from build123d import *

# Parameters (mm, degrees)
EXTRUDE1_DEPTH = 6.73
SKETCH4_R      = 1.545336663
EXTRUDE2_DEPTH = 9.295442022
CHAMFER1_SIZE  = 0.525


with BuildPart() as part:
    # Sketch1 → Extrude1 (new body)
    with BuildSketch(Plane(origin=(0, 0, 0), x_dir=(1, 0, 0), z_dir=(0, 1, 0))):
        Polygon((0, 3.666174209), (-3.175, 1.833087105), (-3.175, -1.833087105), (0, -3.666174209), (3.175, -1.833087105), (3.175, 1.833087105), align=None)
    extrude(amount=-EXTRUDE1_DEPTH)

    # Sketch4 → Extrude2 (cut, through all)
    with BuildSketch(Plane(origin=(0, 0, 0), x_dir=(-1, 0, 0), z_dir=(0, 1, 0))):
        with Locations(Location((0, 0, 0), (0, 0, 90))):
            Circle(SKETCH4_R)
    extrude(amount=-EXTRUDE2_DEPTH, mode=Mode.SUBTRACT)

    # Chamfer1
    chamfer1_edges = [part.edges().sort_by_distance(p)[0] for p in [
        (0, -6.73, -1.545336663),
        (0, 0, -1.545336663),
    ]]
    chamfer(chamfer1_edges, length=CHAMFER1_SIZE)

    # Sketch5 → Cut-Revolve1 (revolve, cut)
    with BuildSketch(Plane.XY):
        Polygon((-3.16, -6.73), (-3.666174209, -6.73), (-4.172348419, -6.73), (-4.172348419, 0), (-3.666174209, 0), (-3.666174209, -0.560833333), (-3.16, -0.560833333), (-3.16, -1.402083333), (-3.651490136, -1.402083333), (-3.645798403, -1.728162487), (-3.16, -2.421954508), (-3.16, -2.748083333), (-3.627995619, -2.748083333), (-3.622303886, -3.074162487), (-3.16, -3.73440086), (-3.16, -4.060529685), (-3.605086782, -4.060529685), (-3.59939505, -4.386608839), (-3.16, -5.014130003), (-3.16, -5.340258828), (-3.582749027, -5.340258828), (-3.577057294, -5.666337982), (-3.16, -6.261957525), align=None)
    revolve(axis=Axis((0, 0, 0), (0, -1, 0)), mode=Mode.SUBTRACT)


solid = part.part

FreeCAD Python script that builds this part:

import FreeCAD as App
import Part
import Sketcher
Q = App.Units.Quantity


def edges_at(feature, points):
    """Names of the edges that pass closest to the given points."""
    edges = feature.Shape.Edges
    near = lambda p: min(range(len(edges)), key=lambda i: edges[i].distToShape(Part.Vertex(*p))[0])
    return sorted({f"Edge{near(p) + 1}" for p in points})

doc = App.newDocument("Part")
body = doc.addObject("PartDesign::Body", "Body")

# Sketch on XZ plane
sketch1 = doc.addObject("Sketcher::SketchObject", "Sketch")
body.addObject(sketch1)
sketch1.AttachmentSupport = (doc.XZ_Plane, [""])
sketch1.MapMode = "FlatFace"
sketch1.addGeometry(Part.LineSegment(App.Vector(0, -3.7, 0), App.Vector(-3.2, -1.8, 0)), False)
sketch1.addGeometry(Part.LineSegment(App.Vector(-3.2, -1.8, 0), App.Vector(-3.2, 1.8, 0)), False)
sketch1.addGeometry(Part.LineSegment(App.Vector(-3.2, 1.8, 0), App.Vector(0, 3.7, 0)), False)
sketch1.addGeometry(Part.LineSegment(App.Vector(0, 3.7, 0), App.Vector(3.2, 1.8, 0)), False)
sketch1.addGeometry(Part.LineSegment(App.Vector(3.2, 1.8, 0), App.Vector(3.2, -1.8, 0)), False)
sketch1.addGeometry(Part.LineSegment(App.Vector(3.2, -1.8, 0), App.Vector(0, -3.7, 0)), False)
sketch1.addConstraint(Sketcher.Constraint("Coincident", 0, 2, 1, 1))
sketch1.addConstraint(Sketcher.Constraint("Coincident", 1, 2, 2, 1))
sketch1.addConstraint(Sketcher.Constraint("Coincident", 2, 2, 3, 1))
sketch1.addConstraint(Sketcher.Constraint("Coincident", 3, 2, 4, 1))
sketch1.addConstraint(Sketcher.Constraint("Coincident", 4, 2, 5, 1))
sketch1.addConstraint(Sketcher.Constraint("Coincident", 5, 2, 0, 1))
sketch1.addConstraint(Sketcher.Constraint("Vertical", 1))
sketch1.addConstraint(Sketcher.Constraint("Vertical", 4))
sketch1.addConstraint(Sketcher.Constraint("Symmetric", 0, 2, 3, 2, -1, 1))
sketch1.addConstraint(Sketcher.Constraint("Symmetric", 2, 2, 5, 2, -1, 1))
sketch1.addConstraint(Sketcher.Constraint("PointOnObject", 2, 2, -2))
sketch1.addConstraint(Sketcher.Constraint("Parallel", 2, 5))
sketch1.addConstraint(Sketcher.Constraint("Horizontal", 1, 2, 3, 2))
sketch1.addConstraint(Sketcher.Constraint("Angle", 0, Q("150 deg")))
sketch1.addConstraint(Sketcher.Constraint("DistanceX", 1, 2, 3, 2, 6.35))
sketch1.addConstraint(Sketcher.Constraint("DistanceY", 1, 1, 1, 2, 3.666174))
pad1 = doc.addObject("PartDesign::Pad", "Pad")
body.addObject(pad1)
pad1.Profile = sketch1
pad1.Length = 6.73

# Sketch on XZ plane
sketch2 = doc.addObject("Sketcher::SketchObject", "Sketch001")
body.addObject(sketch2)
sketch2.AttachmentSupport = (doc.XZ_Plane, [""])
sketch2.MapMode = "FlatFace"
sketch2.addGeometry(Part.Circle(App.Vector(0, 0, 0), App.Vector(0, 0, 1), 1.5), False)
sketch2.addConstraint(Sketcher.Constraint("Coincident", 0, 3, -1, 1))
sketch2.addConstraint(Sketcher.Constraint("Diameter", 0, 3.090673))
pocket1 = doc.addObject("PartDesign::Pocket", "Pocket")
body.addObject(pocket1)
pocket1.Profile = sketch2
pocket1.Type = "ThroughAll"
pocket1.Reversed = True
doc.recompute()

chamfer = doc.addObject("PartDesign::Chamfer", "Chamfer")
body.addObject(chamfer)
chamfer.Base = (pocket1, edges_at(pocket1, [(0, -6.73, -1.545), (0, 0, -1.545)]))
chamfer.Size = 0.525

# Sketch on XY plane
sketch3 = doc.addObject("Sketcher::SketchObject", "Sketch002")
body.addObject(sketch3)
sketch3.AttachmentSupport = (doc.XY_Plane, [""])
sketch3.MapMode = "FlatFace"
sketch3.addGeometry(Part.LineSegment(App.Vector(-4.17, -6.73, 0), App.Vector(-3.16, -6.73, 0)), False)
sketch3.addGeometry(Part.LineSegment(App.Vector(-3.16, -6.73, 0), App.Vector(-3.16, -6.26, 0)), False)
sketch3.addGeometry(Part.LineSegment(App.Vector(-3.16, -6.26, 0), App.Vector(-3.58, -5.67, 0)), False)
sketch3.addGeometry(Part.LineSegment(App.Vector(-3.58, -5.67, 0), App.Vector(-3.58, -5.34, 0)), False)
sketch3.addGeometry(Part.LineSegment(App.Vector(-3.58, -5.34, 0), App.Vector(-3.16, -5.34, 0)), False)
sketch3.addGeometry(Part.LineSegment(App.Vector(-3.16, -5.34, 0), App.Vector(-3.16, -5.01, 0)), False)
sketch3.addGeometry(Part.LineSegment(App.Vector(-3.16, -5.01, 0), App.Vector(-3.6, -4.39, 0)), False)
sketch3.addGeometry(Part.LineSegment(App.Vector(-3.6, -4.39, 0), App.Vector(-3.61, -4.06, 0)), False)
sketch3.addGeometry(Part.LineSegment(App.Vector(-3.61, -4.06, 0), App.Vector(-3.16, -4.06, 0)), False)
sketch3.addGeometry(Part.LineSegment(App.Vector(-3.16, -4.06, 0), App.Vector(-3.16, -3.73, 0)), False)
sketch3.addGeometry(Part.LineSegment(App.Vector(-3.16, -3.73, 0), App.Vector(-3.62, -3.07, 0)), False)
sketch3.addGeometry(Part.LineSegment(App.Vector(-3.62, -3.07, 0), App.Vector(-3.63, -2.75, 0)), False)
sketch3.addGeometry(Part.LineSegment(App.Vector(-3.63, -2.75, 0), App.Vector(-3.16, -2.75, 0)), False)
sketch3.addGeometry(Part.LineSegment(App.Vector(-3.16, -2.75, 0), App.Vector(-3.16, -2.42, 0)), False)
sketch3.addGeometry(Part.LineSegment(App.Vector(-3.16, -2.42, 0), App.Vector(-3.65, -1.73, 0)), False)
sketch3.addGeometry(Part.LineSegment(App.Vector(-3.65, -1.73, 0), App.Vector(-3.65, -1.4, 0)), False)
sketch3.addGeometry(Part.LineSegment(App.Vector(-3.65, -1.4, 0), App.Vector(-3.16, -1.4, 0)), False)
sketch3.addGeometry(Part.LineSegment(App.Vector(-3.16, -1.4, 0), App.Vector(-3.16, -0.56, 0)), False)
sketch3.addGeometry(Part.LineSegment(App.Vector(-3.16, -0.56, 0), App.Vector(-3.67, -0.56, 0)), False)
sketch3.addGeometry(Part.LineSegment(App.Vector(-3.67, -0.56, 0), App.Vector(-3.67, 0, 0)), False)
sketch3.addGeometry(Part.LineSegment(App.Vector(-3.67, 0, 0), App.Vector(-4.17, 0, 0)), False)
sketch3.addGeometry(Part.LineSegment(App.Vector(-4.17, 0, 0), App.Vector(-4.17, -6.73, 0)), False)
sketch3.addConstraint(Sketcher.Constraint("Coincident", 0, 2, 1, 1))
sketch3.addConstraint(Sketcher.Constraint("Coincident", 1, 2, 2, 1))
sketch3.addConstraint(Sketcher.Constraint("Coincident", 2, 2, 3, 1))
sketch3.addConstraint(Sketcher.Constraint("Coincident", 3, 2, 4, 1))
sketch3.addConstraint(Sketcher.Constraint("Coincident", 4, 2, 5, 1))
sketch3.addConstraint(Sketcher.Constraint("Coincident", 5, 2, 6, 1))
sketch3.addConstraint(Sketcher.Constraint("Coincident", 6, 2, 7, 1))
sketch3.addConstraint(Sketcher.Constraint("Coincident", 7, 2, 8, 1))
sketch3.addConstraint(Sketcher.Constraint("Coincident", 8, 2, 9, 1))
sketch3.addConstraint(Sketcher.Constraint("Coincident", 9, 2, 10, 1))
sketch3.addConstraint(Sketcher.Constraint("Coincident", 10, 2, 11, 1))
sketch3.addConstraint(Sketcher.Constraint("Coincident", 11, 2, 12, 1))
sketch3.addConstraint(Sketcher.Constraint("Coincident", 12, 2, 13, 1))
sketch3.addConstraint(Sketcher.Constraint("Coincident", 13, 2, 14, 1))
sketch3.addConstraint(Sketcher.Constraint("Coincident", 14, 2, 15, 1))
sketch3.addConstraint(Sketcher.Constraint("Coincident", 15, 2, 16, 1))
sketch3.addConstraint(Sketcher.Constraint("Coincident", 16, 2, 17, 1))
sketch3.addConstraint(Sketcher.Constraint("Coincident", 17, 2, 18, 1))
sketch3.addConstraint(Sketcher.Constraint("Coincident", 18, 2, 19, 1))
sketch3.addConstraint(Sketcher.Constraint("Coincident", 19, 2, 20, 1))
sketch3.addConstraint(Sketcher.Constraint("Coincident", 20, 2, 21, 1))
sketch3.addConstraint(Sketcher.Constraint("Coincident", 21, 2, 0, 1))
sketch3.addConstraint(Sketcher.Constraint("Horizontal", 0))
sketch3.addConstraint(Sketcher.Constraint("Vertical", 1))
sketch3.addConstraint(Sketcher.Constraint("Horizontal", 4))
sketch3.addConstraint(Sketcher.Constraint("Vertical", 5))
sketch3.addConstraint(Sketcher.Constraint("Horizontal", 8))
sketch3.addConstraint(Sketcher.Constraint("Vertical", 9))
sketch3.addConstraint(Sketcher.Constraint("Horizontal", 12))
sketch3.addConstraint(Sketcher.Constraint("Vertical", 13))
sketch3.addConstraint(Sketcher.Constraint("Horizontal", 16))
sketch3.addConstraint(Sketcher.Constraint("Vertical", 17))
sketch3.addConstraint(Sketcher.Constraint("Horizontal", 18))
sketch3.addConstraint(Sketcher.Constraint("Vertical", 19))
sketch3.addConstraint(Sketcher.Constraint("Horizontal", 20))
sketch3.addConstraint(Sketcher.Constraint("Vertical", 21))
sketch3.addConstraint(Sketcher.Constraint("PointOnObject", 19, 2, -1))
sketch3.addConstraint(Sketcher.Constraint("Parallel", 2, 6))
sketch3.addConstraint(Sketcher.Constraint("Parallel", 3, 7))
sketch3.addConstraint(Sketcher.Constraint("Parallel", 6, 10))
sketch3.addConstraint(Sketcher.Constraint("Parallel", 7, 11))
sketch3.addConstraint(Sketcher.Constraint("Parallel", 10, 14))
sketch3.addConstraint(Sketcher.Constraint("Parallel", 11, 15))
sketch3.addConstraint(Sketcher.Constraint("Vertical", 1, 2, 4, 2))
sketch3.addConstraint(Sketcher.Constraint("Vertical", 5, 2, 8, 2))
sketch3.addConstraint(Sketcher.Constraint("Vertical", 9, 2, 12, 2))
sketch3.addConstraint(Sketcher.Constraint("Vertical", 13, 2, 16, 2))
sketch3.addConstraint(Sketcher.Constraint("Equal", 18, 20))
sketch3.addConstraint(Sketcher.Constraint("Equal", 5, 9))
sketch3.addConstraint(Sketcher.Constraint("Equal", 9, 13))
sketch3.addConstraint(Sketcher.Constraint("Equal", 3, 7))
sketch3.addConstraint(Sketcher.Constraint("Equal", 7, 11))
sketch3.addConstraint(Sketcher.Constraint("Equal", 11, 15))
sketch3.addConstraint(Sketcher.Constraint("Angle", 2, Q("125 deg")))
sketch3.addConstraint(Sketcher.Constraint("Angle", 3, Q("91 deg")))
sketch3.addConstraint(Sketcher.Constraint("DistanceY", 21, 2, 21, 1, 6.73))
sketch3.addConstraint(Sketcher.Constraint("DistanceX", 0, 2, -1, 1, 3.16))
sketch3.addConstraint(Sketcher.Constraint("DistanceY", 10, 2, 14, 2, 1.346))
sketch3.addConstraint(Sketcher.Constraint("DistanceX", 0, 1, 0, 2, 1.012348))
sketch3.addConstraint(Sketcher.Constraint("DistanceX", 4, 1, 4, 2, 0.422749))
sketch3.addConstraint(Sketcher.Constraint("DistanceX", 16, 1, 16, 2, 0.49149))
sketch3.addConstraint(Sketcher.Constraint("DistanceY", 5, 1, 5, 2, 0.326129))
sketch3.addConstraint(Sketcher.Constraint("DistanceY", 17, 1, 17, 2, 0.84125))
sketch3.addConstraint(Sketcher.Constraint("DistanceY", 9, 2, -1, 1, 3.734401))
sketch3.addConstraint(Sketcher.Constraint("DistanceY", 5, 2, 7, 2, 0.9536))
sketch3.addConstraint(Sketcher.Constraint("DistanceX", 11, 2, 6, 2, 0.028601))
groove = doc.addObject("PartDesign::Groove", "Groove")
body.addObject(groove)
groove.Profile = sketch3
groove.ReferenceAxis = (sketch3, ["V_Axis"])
groove.Angle = 360

doc.recompute()
